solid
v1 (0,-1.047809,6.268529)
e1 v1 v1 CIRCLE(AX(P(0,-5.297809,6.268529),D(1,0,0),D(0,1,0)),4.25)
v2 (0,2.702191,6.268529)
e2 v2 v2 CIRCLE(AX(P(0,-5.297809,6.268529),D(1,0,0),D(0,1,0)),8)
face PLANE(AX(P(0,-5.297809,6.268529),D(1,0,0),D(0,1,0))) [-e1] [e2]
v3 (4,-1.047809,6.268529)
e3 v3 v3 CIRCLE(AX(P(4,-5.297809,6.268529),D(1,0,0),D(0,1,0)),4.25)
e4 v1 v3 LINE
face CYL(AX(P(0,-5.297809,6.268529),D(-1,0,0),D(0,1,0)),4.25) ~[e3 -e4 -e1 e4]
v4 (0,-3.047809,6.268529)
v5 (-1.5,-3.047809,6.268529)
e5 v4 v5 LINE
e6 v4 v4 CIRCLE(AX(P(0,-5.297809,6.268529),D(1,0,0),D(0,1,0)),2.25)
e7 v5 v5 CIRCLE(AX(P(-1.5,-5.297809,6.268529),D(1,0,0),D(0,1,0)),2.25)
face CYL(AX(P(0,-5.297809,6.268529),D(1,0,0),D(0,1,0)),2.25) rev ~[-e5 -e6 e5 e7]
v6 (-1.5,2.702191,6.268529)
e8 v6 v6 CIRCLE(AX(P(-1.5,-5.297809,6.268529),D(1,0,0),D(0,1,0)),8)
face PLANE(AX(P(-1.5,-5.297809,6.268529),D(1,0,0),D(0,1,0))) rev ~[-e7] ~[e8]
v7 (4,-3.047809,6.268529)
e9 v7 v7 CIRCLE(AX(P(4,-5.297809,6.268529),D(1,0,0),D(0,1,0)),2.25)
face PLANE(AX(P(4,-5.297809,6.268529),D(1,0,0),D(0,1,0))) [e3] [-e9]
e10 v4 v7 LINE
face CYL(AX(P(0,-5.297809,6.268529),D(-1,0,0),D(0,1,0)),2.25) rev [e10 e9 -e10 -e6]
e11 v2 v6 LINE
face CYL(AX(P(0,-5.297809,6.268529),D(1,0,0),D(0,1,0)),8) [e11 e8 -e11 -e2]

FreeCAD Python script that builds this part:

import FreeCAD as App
import Part
import Sketcher
from FreeCAD import Vector
Q = App.Units.Quantity

doc = App.newDocument("Part")
params = doc.addObject("Spreadsheet::Sheet", "Params")
for row, (alias, value) in enumerate([
    ("sketch1_diameter", "8.5 mm"),
    ("sketch1_diameter2", "4.5 mm"),
    ("pad1_length", "4 mm"),
    ("sketch2_diameter", "16 mm"),
    ("sketch2_diameter2", "4.5 mm"),
    ("pad2_length", "1.5 mm"),
], start=1):
    params.set(f"A{row}", alias)
    params.set(f"B{row}", "=" + value)
    params.setAlias(f"B{row}", alias)

body = doc.addObject("PartDesign::Body", "Body")

# Sketch on YZ plane
sketch1 = body.newObject("Sketcher::SketchObject", "Sketch")
sketch1.AttachmentSupport = (doc.getObject("YZ_Plane"), [""])
sketch1.MapMode = "FlatFace"
sketch1.addGeometry(Part.Circle(Vector(-5.3, 6.3, 0), Vector(0, 0, 1), 4.2), False)
sketch1.addGeometry(Part.Circle(Vector(-5.3, 6.3, 0), Vector(0, 0, 1), 2.2), False)
sketch1.addConstraint(Sketcher.Constraint("Coincident", 1, 3, 0, 3))
sketch1.addConstraint(Sketcher.Constraint("Diameter", 0, Q("8.5 mm")))
sketch1.addConstraint(Sketcher.Constraint("Diameter", 1, Q("4.5 mm")))
sketch1.addConstraint(Sketcher.Constraint("DistanceX", 0, 3, -1, 1, Q("5.297809 mm")))
sketch1.addConstraint(Sketcher.Constraint("DistanceY", -1, 1, 0, 3, Q("6.268529 mm")))
sketch1.setExpression("Constraints[1]", "Params.sketch1_diameter")
sketch1.setExpression("Constraints[2]", "Params.sketch1_diameter2")
pad1 = body.newObject("PartDesign::Pad", "Pad")
pad1.Profile = sketch1
pad1.setExpression("Length", "Params.pad1_length")

# Sketch on YZ plane
sketch2 = body.newObject("Sketcher::SketchObject", "Sketch001")
sketch2.AttachmentSupport = (doc.getObject("YZ_Plane"), [""])
sketch2.MapMode = "FlatFace"
sketch2.addGeometry(Part.Circle(Vector(-5.3, 6.3, 0), Vector(0, 0, 1), 8), False)
sketch2.addGeometry(Part.Circle(Vector(-5.3, 6.3, 0), Vector(0, 0, 1), 2.2), False)
sketch2.addConstraint(Sketcher.Constraint("Coincident", 1, 3, 0, 3))
sketch2.addConstraint(Sketcher.Constraint("Diameter", 0, Q("16 mm")))
sketch2.addConstraint(Sketcher.Constraint("Diameter", 1, Q("4.5 mm")))
sketch2.addConstraint(Sketcher.Constraint("DistanceX", 0, 3, -1, 1, Q("5.297809 mm")))
sketch2.addConstraint(Sketcher.Constraint("DistanceY", -1, 1, 0, 3, Q("6.268529 mm")))
sketch2.setExpression("Constraints[1]", "Params.sketch2_diameter")
sketch2.setExpression("Constraints[2]", "Params.sketch2_diameter2")
pad2 = body.newObject("PartDesign::Pad", "Pad001")
pad2.Profile = sketch2
pad2.setExpression("Length", "Params.pad2_length")
pad2.Reversed = True

doc.recompute()
